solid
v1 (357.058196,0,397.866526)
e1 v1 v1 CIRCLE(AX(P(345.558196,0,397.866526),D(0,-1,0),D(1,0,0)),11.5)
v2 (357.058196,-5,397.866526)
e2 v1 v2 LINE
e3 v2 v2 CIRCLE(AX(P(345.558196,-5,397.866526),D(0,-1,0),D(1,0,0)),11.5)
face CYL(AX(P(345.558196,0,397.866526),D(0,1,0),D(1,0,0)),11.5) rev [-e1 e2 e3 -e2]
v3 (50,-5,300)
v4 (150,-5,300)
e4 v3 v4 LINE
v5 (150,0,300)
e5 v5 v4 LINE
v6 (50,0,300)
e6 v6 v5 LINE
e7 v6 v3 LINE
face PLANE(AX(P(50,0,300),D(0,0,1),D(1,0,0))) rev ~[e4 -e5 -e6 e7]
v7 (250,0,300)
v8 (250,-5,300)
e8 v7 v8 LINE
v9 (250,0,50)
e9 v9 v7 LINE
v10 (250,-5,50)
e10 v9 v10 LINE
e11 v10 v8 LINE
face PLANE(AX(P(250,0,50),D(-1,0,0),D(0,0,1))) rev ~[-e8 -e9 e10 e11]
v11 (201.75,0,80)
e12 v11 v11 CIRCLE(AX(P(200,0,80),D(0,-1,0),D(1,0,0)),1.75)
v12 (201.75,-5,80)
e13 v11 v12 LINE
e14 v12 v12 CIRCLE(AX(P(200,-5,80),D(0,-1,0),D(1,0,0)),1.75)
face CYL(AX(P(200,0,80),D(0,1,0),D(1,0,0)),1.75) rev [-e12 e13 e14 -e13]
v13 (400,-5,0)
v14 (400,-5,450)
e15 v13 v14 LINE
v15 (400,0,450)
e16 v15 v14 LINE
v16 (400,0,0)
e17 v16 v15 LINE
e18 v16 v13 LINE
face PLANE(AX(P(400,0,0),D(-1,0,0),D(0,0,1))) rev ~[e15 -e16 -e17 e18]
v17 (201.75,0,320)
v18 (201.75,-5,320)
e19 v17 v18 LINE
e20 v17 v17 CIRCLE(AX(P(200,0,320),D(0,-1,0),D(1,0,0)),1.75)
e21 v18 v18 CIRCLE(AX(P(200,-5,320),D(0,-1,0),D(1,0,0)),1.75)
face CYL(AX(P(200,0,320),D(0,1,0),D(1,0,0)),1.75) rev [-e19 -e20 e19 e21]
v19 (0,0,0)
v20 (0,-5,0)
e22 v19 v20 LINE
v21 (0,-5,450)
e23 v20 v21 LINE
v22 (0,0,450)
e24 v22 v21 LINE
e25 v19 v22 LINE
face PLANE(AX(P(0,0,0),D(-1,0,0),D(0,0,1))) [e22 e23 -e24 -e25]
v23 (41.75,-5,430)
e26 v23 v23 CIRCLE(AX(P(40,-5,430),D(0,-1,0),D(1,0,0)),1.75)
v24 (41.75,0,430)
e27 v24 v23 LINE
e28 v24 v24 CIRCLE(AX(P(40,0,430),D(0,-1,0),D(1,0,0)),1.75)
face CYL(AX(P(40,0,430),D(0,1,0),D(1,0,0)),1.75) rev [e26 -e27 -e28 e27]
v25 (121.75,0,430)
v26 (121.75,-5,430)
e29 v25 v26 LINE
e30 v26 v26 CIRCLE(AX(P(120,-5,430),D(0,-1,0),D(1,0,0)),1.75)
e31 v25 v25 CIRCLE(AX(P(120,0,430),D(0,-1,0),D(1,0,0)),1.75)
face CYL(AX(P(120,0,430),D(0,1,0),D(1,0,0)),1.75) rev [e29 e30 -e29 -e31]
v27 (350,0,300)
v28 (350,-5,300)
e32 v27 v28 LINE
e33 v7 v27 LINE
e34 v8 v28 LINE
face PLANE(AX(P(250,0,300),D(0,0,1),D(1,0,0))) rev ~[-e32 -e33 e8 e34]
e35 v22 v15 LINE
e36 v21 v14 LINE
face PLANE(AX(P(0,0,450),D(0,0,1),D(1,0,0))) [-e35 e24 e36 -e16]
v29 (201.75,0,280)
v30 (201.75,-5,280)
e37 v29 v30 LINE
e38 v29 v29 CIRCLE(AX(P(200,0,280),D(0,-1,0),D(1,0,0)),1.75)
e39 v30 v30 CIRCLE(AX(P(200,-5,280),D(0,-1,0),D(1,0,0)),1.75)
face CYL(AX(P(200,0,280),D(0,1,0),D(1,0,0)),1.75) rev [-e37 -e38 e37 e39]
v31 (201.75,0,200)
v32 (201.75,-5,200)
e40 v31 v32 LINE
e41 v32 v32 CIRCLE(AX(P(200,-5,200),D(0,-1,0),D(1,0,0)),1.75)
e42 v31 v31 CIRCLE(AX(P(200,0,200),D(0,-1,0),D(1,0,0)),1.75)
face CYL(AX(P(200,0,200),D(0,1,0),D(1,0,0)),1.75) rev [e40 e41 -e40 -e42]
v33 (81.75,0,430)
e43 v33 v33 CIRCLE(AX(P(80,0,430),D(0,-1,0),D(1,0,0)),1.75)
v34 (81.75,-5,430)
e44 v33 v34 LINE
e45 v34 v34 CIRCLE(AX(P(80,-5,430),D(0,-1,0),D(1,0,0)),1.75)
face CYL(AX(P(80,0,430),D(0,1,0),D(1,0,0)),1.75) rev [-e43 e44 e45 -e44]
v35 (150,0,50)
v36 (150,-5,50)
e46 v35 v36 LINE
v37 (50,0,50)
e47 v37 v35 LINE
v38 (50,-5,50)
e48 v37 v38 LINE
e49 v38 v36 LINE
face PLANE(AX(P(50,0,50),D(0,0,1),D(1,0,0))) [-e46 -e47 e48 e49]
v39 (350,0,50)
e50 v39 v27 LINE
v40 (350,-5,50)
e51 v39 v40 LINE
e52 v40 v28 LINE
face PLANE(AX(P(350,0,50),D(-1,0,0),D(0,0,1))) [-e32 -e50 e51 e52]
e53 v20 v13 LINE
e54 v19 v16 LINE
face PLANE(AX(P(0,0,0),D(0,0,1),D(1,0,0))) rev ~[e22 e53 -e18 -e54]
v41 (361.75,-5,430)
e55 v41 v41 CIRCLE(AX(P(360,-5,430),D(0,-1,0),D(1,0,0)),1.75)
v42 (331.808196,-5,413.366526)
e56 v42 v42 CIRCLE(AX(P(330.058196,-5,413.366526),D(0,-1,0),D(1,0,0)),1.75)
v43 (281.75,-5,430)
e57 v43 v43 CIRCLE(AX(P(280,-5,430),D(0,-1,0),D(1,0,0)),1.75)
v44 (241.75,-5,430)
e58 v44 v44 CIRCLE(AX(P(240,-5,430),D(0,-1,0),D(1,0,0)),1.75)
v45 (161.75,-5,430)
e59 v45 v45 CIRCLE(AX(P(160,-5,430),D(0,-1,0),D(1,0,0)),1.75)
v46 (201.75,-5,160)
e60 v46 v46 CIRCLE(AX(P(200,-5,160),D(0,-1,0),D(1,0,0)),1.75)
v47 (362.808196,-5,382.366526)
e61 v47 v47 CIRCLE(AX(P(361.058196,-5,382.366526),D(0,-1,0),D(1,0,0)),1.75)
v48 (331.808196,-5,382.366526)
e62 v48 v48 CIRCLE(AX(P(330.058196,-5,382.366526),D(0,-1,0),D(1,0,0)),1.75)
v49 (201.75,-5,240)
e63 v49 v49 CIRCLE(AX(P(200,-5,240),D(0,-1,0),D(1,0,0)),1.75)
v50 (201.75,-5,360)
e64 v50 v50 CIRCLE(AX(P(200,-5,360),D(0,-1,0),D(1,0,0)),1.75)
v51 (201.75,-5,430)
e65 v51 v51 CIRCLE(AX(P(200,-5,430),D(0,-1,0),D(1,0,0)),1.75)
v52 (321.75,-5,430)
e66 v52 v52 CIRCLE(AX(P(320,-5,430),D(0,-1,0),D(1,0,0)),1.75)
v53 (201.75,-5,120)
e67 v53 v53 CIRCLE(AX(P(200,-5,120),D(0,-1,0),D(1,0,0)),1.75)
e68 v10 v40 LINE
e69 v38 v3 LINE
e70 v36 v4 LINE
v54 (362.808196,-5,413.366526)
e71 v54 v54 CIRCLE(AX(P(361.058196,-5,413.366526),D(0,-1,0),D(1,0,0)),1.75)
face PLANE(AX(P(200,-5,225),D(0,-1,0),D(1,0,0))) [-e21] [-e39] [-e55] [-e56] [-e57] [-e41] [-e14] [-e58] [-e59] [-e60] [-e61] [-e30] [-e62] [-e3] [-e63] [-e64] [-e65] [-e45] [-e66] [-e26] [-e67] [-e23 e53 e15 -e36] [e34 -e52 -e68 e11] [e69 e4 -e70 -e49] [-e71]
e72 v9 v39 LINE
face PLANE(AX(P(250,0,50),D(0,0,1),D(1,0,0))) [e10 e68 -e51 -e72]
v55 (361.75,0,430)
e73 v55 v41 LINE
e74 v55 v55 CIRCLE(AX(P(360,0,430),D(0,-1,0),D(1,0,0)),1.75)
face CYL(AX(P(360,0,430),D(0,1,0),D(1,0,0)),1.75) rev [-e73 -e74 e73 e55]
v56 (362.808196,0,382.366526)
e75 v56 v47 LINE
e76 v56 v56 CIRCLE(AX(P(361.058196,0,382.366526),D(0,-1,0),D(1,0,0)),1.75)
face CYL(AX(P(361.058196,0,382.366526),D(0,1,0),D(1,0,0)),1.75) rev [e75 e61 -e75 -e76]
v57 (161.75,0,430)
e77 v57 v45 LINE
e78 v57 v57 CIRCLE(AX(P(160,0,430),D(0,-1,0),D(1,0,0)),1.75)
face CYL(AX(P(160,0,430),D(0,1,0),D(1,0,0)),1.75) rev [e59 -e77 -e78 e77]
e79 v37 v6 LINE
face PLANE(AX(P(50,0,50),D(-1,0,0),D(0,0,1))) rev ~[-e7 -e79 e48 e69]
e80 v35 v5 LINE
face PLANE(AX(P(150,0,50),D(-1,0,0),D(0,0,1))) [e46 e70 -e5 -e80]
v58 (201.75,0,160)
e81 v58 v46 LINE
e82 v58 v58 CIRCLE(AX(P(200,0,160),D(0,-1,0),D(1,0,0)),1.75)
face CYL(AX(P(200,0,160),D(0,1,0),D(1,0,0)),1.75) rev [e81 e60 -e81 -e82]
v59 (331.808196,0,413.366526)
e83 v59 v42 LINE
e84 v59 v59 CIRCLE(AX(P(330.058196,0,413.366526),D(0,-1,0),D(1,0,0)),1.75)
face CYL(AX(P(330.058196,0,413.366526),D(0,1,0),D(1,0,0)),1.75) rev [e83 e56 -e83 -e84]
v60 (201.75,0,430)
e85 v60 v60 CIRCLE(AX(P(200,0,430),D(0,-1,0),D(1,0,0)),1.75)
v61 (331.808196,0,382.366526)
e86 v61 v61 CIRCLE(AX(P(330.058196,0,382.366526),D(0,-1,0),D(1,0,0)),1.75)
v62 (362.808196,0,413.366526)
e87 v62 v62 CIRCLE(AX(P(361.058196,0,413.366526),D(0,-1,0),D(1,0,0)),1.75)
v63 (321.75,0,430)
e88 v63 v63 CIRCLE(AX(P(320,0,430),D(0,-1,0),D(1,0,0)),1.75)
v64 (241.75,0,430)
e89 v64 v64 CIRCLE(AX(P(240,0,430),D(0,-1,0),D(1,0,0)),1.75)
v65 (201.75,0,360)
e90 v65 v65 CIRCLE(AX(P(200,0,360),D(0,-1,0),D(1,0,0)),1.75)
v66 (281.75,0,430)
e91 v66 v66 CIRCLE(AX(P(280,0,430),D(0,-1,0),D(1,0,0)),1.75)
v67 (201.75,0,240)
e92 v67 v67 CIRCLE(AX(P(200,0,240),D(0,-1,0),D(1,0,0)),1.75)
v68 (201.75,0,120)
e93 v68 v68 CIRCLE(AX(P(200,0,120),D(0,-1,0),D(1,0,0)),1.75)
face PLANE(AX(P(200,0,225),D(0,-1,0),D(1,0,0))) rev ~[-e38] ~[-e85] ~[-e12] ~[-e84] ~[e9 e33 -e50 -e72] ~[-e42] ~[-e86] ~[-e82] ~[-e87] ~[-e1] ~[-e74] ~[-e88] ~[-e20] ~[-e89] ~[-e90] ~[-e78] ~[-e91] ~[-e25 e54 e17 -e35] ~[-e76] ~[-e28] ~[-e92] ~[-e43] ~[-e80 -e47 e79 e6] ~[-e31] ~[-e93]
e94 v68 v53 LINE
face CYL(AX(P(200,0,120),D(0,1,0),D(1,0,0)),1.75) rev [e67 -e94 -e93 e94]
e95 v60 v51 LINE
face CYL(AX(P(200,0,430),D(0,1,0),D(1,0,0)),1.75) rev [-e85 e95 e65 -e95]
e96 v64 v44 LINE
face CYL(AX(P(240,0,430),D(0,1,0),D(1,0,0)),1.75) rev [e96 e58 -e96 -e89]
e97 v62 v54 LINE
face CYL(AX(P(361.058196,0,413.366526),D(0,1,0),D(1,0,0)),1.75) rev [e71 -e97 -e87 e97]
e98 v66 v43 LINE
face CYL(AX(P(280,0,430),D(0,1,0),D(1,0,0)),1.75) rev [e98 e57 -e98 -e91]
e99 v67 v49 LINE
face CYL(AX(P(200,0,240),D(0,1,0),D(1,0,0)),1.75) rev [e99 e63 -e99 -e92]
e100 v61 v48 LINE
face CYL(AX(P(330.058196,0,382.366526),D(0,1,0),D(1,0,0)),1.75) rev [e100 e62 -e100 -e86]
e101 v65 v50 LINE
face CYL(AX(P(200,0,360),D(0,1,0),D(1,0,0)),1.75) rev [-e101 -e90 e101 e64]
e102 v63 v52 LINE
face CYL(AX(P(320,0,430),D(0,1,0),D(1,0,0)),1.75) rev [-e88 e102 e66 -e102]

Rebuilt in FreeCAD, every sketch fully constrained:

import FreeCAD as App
import Part
import Sketcher
Q = App.Units.Quantity

doc = App.newDocument("Part")
body = doc.addObject("PartDesign::Body", "Body")

# Sketch on XZ plane
sketch1 = body.newObject("Sketcher::SketchObject", "Sketch")
sketch1.AttachmentSupport = (doc.getObject("XZ_Plane"), [""])
sketch1.MapMode = "FlatFace"
sketch1.addGeometry(Part.LineSegment(App.Vector(0, 450, 0), App.Vector(0, 0, 0)), False)
sketch1.addGeometry(Part.LineSegment(App.Vector(0, 0, 0), App.Vector(400, 0, 0)), False)
sketch1.addGeometry(Part.LineSegment(App.Vector(400, 0, 0), App.Vector(400, 450, 0)), False)
sketch1.addGeometry(Part.LineSegment(App.Vector(400, 450, 0), App.Vector(0, 450, 0)), False)
sketch1.addGeometry(Part.Circle(App.Vector(200, 80, 0), App.Vector(0, 0, 1), 1.8), False)
sketch1.addGeometry(Part.Circle(App.Vector(200, 120, 0), App.Vector(0, 0, 1), 1.8), False)
sketch1.addGeometry(Part.LineSegment(App.Vector(150, 50, 0), App.Vector(50, 50, 0)), False)
sketch1.addGeometry(Part.LineSegment(App.Vector(50, 50, 0), App.Vector(50, 300, 0)), False)
sketch1.addGeometry(Part.LineSegment(App.Vector(50, 300, 0), App.Vector(150, 300, 0)), False)
sketch1.addGeometry(Part.LineSegment(App.Vector(150, 300, 0), App.Vector(150, 50, 0)), False)
sketch1.addGeometry(Part.Circle(App.Vector(200, 160, 0), App.Vector(0, 0, 1), 1.8), False)
sketch1.addGeometry(Part.Circle(App.Vector(200, 200, 0), App.Vector(0, 0, 1), 1.8), False)
sketch1.addGeometry(Part.Circle(App.Vector(200, 240, 0), App.Vector(0, 0, 1), 1.8), False)
sketch1.addGeometry(Part.LineSegment(App.Vector(350, 50, 0), App.Vector(250, 50, 0)), False)
sketch1.addGeometry(Part.LineSegment(App.Vector(250, 50, 0), App.Vector(250, 300, 0)), False)
sketch1.addGeometry(Part.LineSegment(App.Vector(250, 300, 0), App.Vector(350, 300, 0)), False)
sketch1.addGeometry(Part.LineSegment(App.Vector(350, 300, 0), App.Vector(350, 50, 0)), False)
sketch1.addGeometry(Part.Circle(App.Vector(200, 280, 0), App.Vector(0, 0, 1), 1.8), False)
sketch1.addGeometry(Part.Circle(App.Vector(200, 320, 0), App.Vector(0, 0, 1), 1.8), False)
sketch1.addGeometry(Part.Circle(App.Vector(40, 430, 0), App.Vector(0, 0, 1), 1.8), False)
sketch1.addGeometry(Part.Circle(App.Vector(80, 430, 0), App.Vector(0, 0, 1), 1.8), False)
sketch1.addGeometry(Part.Circle(App.Vector(200, 360, 0), App.Vector(0, 0, 1), 1.8), False)
sketch1.addGeometry(Part.Circle(App.Vector(120, 430, 0), App.Vector(0, 0, 1), 1.8), False)
sketch1.addGeometry(Part.Circle(App.Vector(160, 430, 0), App.Vector(0, 0, 1), 1.8), False)
sketch1.addGeometry(Part.Circle(App.Vector(200, 430, 0), App.Vector(0, 0, 1), 1.8), False)
sketch1.addGeometry(Part.Circle(App.Vector(240, 430, 0), App.Vector(0, 0, 1), 1.8), False)
sketch1.addGeometry(Part.Circle(App.Vector(280, 430, 0), App.Vector(0, 0, 1), 1.8), False)
sketch1.addGeometry(Part.Circle(App.Vector(330.1, 382.4, 0), App.Vector(0, 0, 1), 1.8), False)
sketch1.addGeometry(Part.Circle(App.Vector(361.1, 382.4, 0), App.Vector(0, 0, 1), 1.8), False)
sketch1.addGeometry(Part.Circle(App.Vector(320, 430, 0), App.Vector(0, 0, 1), 1.8), False)
sketch1.addGeometry(Part.Circle(App.Vector(345.6, 397.9, 0), App.Vector(0, 0, 1), 11.5), False)
sketch1.addGeometry(Part.Circle(App.Vector(330.1, 413.4, 0), App.Vector(0, 0, 1), 1.8), False)
sketch1.addGeometry(Part.Circle(App.Vector(361.1, 413.4, 0), App.Vector(0, 0, 1), 1.8), False)
sketch1.addGeometry(Part.Circle(App.Vector(360, 430, 0), App.Vector(0, 0, 1), 1.8), False)
sketch1.addConstraint(Sketcher.Constraint("Coincident", 0, 2, 1, 1))
sketch1.addConstraint(Sketcher.Constraint("Coincident", 1, 2, 2, 1))
sketch1.addConstraint(Sketcher.Constraint("Coincident", 2, 2, 3, 1))
sketch1.addConstraint(Sketcher.Constraint("Coincident", 3, 2, 0, 1))
sketch1.addConstraint(Sketcher.Constraint("Coincident", 6, 2, 7, 1))
sketch1.addConstraint(Sketcher.Constraint("Coincident", 7, 2, 8, 1))
sketch1.addConstraint(Sketcher.Constraint("Coincident", 8, 2, 9, 1))
sketch1.addConstraint(Sketcher.Constraint("Coincident", 9, 2, 6, 1))
sketch1.addConstraint(Sketcher.Constraint("Coincident", 13, 2, 14, 1))
sketch1.addConstraint(Sketcher.Constraint("Coincident", 14, 2, 15, 1))
sketch1.addConstraint(Sketcher.Constraint("Coincident", 15, 2, 16, 1))
sketch1.addConstraint(Sketcher.Constraint("Coincident", 16, 2, 13, 1))
sketch1.addConstraint(Sketcher.Constraint("Vertical", 0))
sketch1.addConstraint(Sketcher.Constraint("Horizontal", 1))
sketch1.addConstraint(Sketcher.Constraint("Vertical", 2))
sketch1.addConstraint(Sketcher.Constraint("Horizontal", 3))
sketch1.addConstraint(Sketcher.Constraint("Horizontal", 6))
sketch1.addConstraint(Sketcher.Constraint("Vertical", 7))
sketch1.addConstraint(Sketcher.Constraint("Horizontal", 8))
sketch1.addConstraint(Sketcher.Constraint("Vertical", 9))
sketch1.addConstraint(Sketcher.Constraint("Horizontal", 13))
sketch1.addConstraint(Sketcher.Constraint("Vertical", 14))
sketch1.addConstraint(Sketcher.Constraint("Horizontal", 15))
sketch1.addConstraint(Sketcher.Constraint("Vertical", 16))
sketch1.addConstraint(Sketcher.Constraint("Coincident", 0, 2, -1, 1))
sketch1.addConstraint(Sketcher.Constraint("Equal", 4, 5))
sketch1.addConstraint(Sketcher.Constraint("Equal", 5, 10))
sketch1.addConstraint(Sketcher.Constraint("Equal", 10, 11))
sketch1.addConstraint(Sketcher.Constraint("Equal", 11, 12))
sketch1.addConstraint(Sketcher.Constraint("Equal", 12, 17))
sketch1.addConstraint(Sketcher.Constraint("Equal", 17, 18))
sketch1.addConstraint(Sketcher.Constraint("Equal", 18, 19))
sketch1.addConstraint(Sketcher.Constraint("Equal", 19, 20))
sketch1.addConstraint(Sketcher.Constraint("Equal", 20, 21))
sketch1.addConstraint(Sketcher.Constraint("Equal", 21, 22))
sketch1.addConstraint(Sketcher.Constraint("Equal", 22, 23))
sketch1.addConstraint(Sketcher.Constraint("Equal", 23, 24))
sketch1.addConstraint(Sketcher.Constraint("Equal", 24, 25))
sketch1.addConstraint(Sketcher.Constraint("Equal", 25, 26))
sketch1.addConstraint(Sketcher.Constraint("Equal", 26, 27))
sketch1.addConstraint(Sketcher.Constraint("Equal", 27, 28))
sketch1.addConstraint(Sketcher.Constraint("Equal", 28, 29))
sketch1.addConstraint(Sketcher.Constraint("Equal", 29, 31))
sketch1.addConstraint(Sketcher.Constraint("Equal", 31, 32))
sketch1.addConstraint(Sketcher.Constraint("Equal", 32, 33))
sketch1.addConstraint(Sketcher.Constraint("Horizontal", 19, 3, 20, 3))
sketch1.addConstraint(Sketcher.Constraint("Horizontal", 20, 3, 22, 3))
sketch1.addConstraint(Sketcher.Constraint("Horizontal", 22, 3, 23, 3))
sketch1.addConstraint(Sketcher.Constraint("Horizontal", 23, 3, 24, 3))
sketch1.addConstraint(Sketcher.Constraint("Horizontal", 24, 3, 25, 3))
sketch1.addConstraint(Sketcher.Constraint("Horizontal", 25, 3, 26, 3))
sketch1.addConstraint(Sketcher.Constraint("Horizontal", 27, 3, 28, 3))
sketch1.addConstraint(Sketcher.Constraint("Horizontal", 26, 3, 29, 3))
sketch1.addConstraint(Sketcher.Constraint("Horizontal", 31, 3, 32, 3))
sketch1.addConstraint(Sketcher.Constraint("Horizontal", 29, 3, 33, 3))
sketch1.addConstraint(Sketcher.Constraint("Horizontal", 9, 2, 13, 2))
sketch1.addConstraint(Sketcher.Constraint("Horizontal", 8, 2, 14, 2))
sketch1.addConstraint(Sketcher.Constraint("Vertical", 4, 3, 5, 3))
sketch1.addConstraint(Sketcher.Constraint("Vertical", 5, 3, 10, 3))
sketch1.addConstraint(Sketcher.Constraint("Vertical", 10, 3, 11, 3))
sketch1.addConstraint(Sketcher.Constraint("Vertical", 11, 3, 12, 3))
sketch1.addConstraint(Sketcher.Constraint("Vertical", 12, 3, 17, 3))
sketch1.addConstraint(Sketcher.Constraint("Vertical", 17, 3, 18, 3))
sketch1.addConstraint(Sketcher.Constraint("Vertical", 18, 3, 21, 3))
sketch1.addConstraint(Sketcher.Constraint("Vertical", 21, 3, 24, 3))
sketch1.addConstraint(Sketcher.Constraint("Vertical", 27, 3, 31, 3))
sketch1.addConstraint(Sketcher.Constraint("Vertical", 28, 3, 32, 3))
sketch1.addConstraint(Sketcher.Constraint("Equal", 8, 13))
sketch1.addConstraint(Sketcher.Constraint("Diameter", 30, Q("23 mm")))
sketch1.addConstraint(Sketcher.Constraint("Diameter", 4, Q("3.5 mm")))
sketch1.addConstraint(Sketcher.Constraint("DistanceX", 1, 1, 1, 2, Q("400 mm")))
sketch1.addConstraint(Sketcher.Constraint("DistanceX", 6, 2, 6, 1, Q("100 mm")))
sketch1.addConstraint(Sketcher.Constraint("DistanceY", 0, 2, 0, 1, Q("450 mm")))
sketch1.addConstraint(Sketcher.Constraint("DistanceY", 7, 1, 7, 2, Q("250 mm")))
sketch1.addConstraint(Sketcher.Constraint("DistanceX", -1, 1, 4, 3, Q("200 mm")))
sketch1.addConstraint(Sketcher.Constraint("DistanceY", -1, 1, 4, 3, Q("80 mm")))
sketch1.addConstraint(Sketcher.Constraint("DistanceY", -1, 1, 5, 3, Q("120 mm")))
sketch1.addConstraint(Sketcher.Constraint("DistanceY", -1, 1, 10, 3, Q("160 mm")))
sketch1.addConstraint(Sketcher.Constraint("DistanceY", -1, 1, 11, 3, Q("200 mm")))
sketch1.addConstraint(Sketcher.Constraint("DistanceY", -1, 1, 12, 3, Q("240 mm")))
sketch1.addConstraint(Sketcher.Constraint("DistanceY", -1, 1, 17, 3, Q("280 mm")))
sketch1.addConstraint(Sketcher.Constraint("DistanceY", -1, 1, 18, 3, Q("320 mm")))
sketch1.addConstraint(Sketcher.Constraint("DistanceX", -1, 1, 19, 3, Q("40 mm")))
sketch1.addConstraint(Sketcher.Constraint("DistanceY", -1, 1, 19, 3, Q("430 mm")))
sketch1.addConstraint(Sketcher.Constraint("DistanceX", -1, 1, 20, 3, Q("80 mm")))
sketch1.addConstraint(Sketcher.Constraint("DistanceY", -1, 1, 21, 3, Q("360 mm")))
sketch1.addConstraint(Sketcher.Constraint("DistanceX", -1, 1, 22, 3, Q("120 mm")))
sketch1.addConstraint(Sketcher.Constraint("DistanceX", -1, 1, 23, 3, Q("160 mm")))
sketch1.addConstraint(Sketcher.Constraint("DistanceX", -1, 1, 25, 3, Q("240 mm")))
sketch1.addConstraint(Sketcher.Constraint("DistanceX", -1, 1, 26, 3, Q("280 mm")))
sketch1.addConstraint(Sketcher.Constraint("DistanceX", -1, 1, 29, 3, Q("320 mm")))
sketch1.addConstraint(Sketcher.Constraint("DistanceX", -1, 1, 33, 3, Q("360 mm")))
sketch1.addConstraint(Sketcher.Constraint("DistanceX", -1, 1, 6, 2, Q("50 mm")))
sketch1.addConstraint(Sketcher.Constraint("DistanceY", -1, 1, 6, 2, Q("50 mm")))
sketch1.addConstraint(Sketcher.Constraint("DistanceX", -1, 1, 13, 2, Q("250 mm")))
sketch1.addConstraint(Sketcher.Constraint("DistanceX", 27, 3, 28, 3, Q("31 mm")))
sketch1.addConstraint(Sketcher.Constraint("DistanceY", 27, 3, 31, 3, Q("31 mm")))
sketch1.addConstraint(Sketcher.Constraint("DistanceX", 27, 3, 30, 3, Q("15.5 mm")))
sketch1.addConstraint(Sketcher.Constraint("DistanceY", 27, 3, 30, 3, Q("15.5 mm")))
sketch1.addConstraint(Sketcher.Constraint("DistanceX", -1, 1, 27, 3, Q("330.058196 mm")))
sketch1.addConstraint(Sketcher.Constraint("DistanceY", -1, 1, 27, 3, Q("382.366526 mm")))
pad1 = body.newObject("PartDesign::Pad", "Pad")
pad1.Profile = sketch1
pad1.Length = 5

doc.recompute()
